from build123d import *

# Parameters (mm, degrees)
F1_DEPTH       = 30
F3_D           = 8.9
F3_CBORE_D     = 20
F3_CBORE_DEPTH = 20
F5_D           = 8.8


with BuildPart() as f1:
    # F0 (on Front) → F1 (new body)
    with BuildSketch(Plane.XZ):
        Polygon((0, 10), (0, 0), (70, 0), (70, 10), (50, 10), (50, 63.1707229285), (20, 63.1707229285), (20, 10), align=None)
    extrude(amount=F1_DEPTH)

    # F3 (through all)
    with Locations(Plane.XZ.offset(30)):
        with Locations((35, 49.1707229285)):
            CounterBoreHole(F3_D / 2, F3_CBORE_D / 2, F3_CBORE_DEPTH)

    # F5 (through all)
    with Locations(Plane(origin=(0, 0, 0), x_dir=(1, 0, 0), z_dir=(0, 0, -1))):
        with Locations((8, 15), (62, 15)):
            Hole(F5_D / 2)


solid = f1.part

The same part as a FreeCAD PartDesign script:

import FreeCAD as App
import Part
import Sketcher


def add_polygon(sketch, points):
    """Adds a closed chain of lines whose ends are joined by coincident constraints."""
    first, n = sketch.GeometryCount, len(points)
    for a, b in zip(points, points[1:] + points[:1]):
        sketch.addGeometry(Part.LineSegment(App.Vector(*a, 0), App.Vector(*b, 0)), False)
    for i in range(n):
        sketch.addConstraint(Sketcher.Constraint("Coincident", first + i, 2, first + (i + 1) % n, 1))

doc = App.newDocument("Part")
body = doc.addObject("PartDesign::Body", "Body")

# Sketch on XZ plane
sketch1 = body.newObject("Sketcher::SketchObject", "Sketch")
sketch1.AttachmentSupport = (doc.getObject("XZ_Plane"), [""])
sketch1.MapMode = "FlatFace"
add_polygon(sketch1, [(0, 10), (0, 0), (70, 0), (70, 10), (50, 10), (50, 63.170723), (20, 63.170723), (20, 10)])  # lines 0-7
sketch1.addConstraint([
    Sketcher.Constraint("Vertical", 0),
    Sketcher.Constraint("Horizontal", 1),
    Sketcher.Constraint("Vertical", 2),
    Sketcher.Constraint("Horizontal", 3),
    Sketcher.Constraint("Vertical", 4),
    Sketcher.Constraint("Horizontal", 5),
    Sketcher.Constraint("Vertical", 6),
    Sketcher.Constraint("Horizontal", 7),
    Sketcher.Constraint("Coincident", 0, 2, -1, 1),
    Sketcher.Constraint("Horizontal", 3, 2, 6, 2),
    Sketcher.Constraint("Equal", 3, 7),
    Sketcher.Constraint("DistanceX", 1, 1, 1, 2, 70.0),
    Sketcher.Constraint("DistanceX", 3, 2, 3, 1, 20.0),
    Sketcher.Constraint("DistanceY", 0, 2, 0, 1, 10.0),
    Sketcher.Constraint("DistanceY", 4, 1, 4, 2, 53.170723),
])
pad1 = body.newObject("PartDesign::Pad", "Pad")
pad1.Profile = sketch1
pad1.Length = 30

# Sketch on XZ plane
sketch2 = body.newObject("Sketcher::SketchObject", "Sketch001")
sketch2.AttachmentSupport = (doc.getObject("XZ_Plane"), [""])
sketch2.MapMode = "FlatFace"
sketch2.AttachmentOffset = App.Placement(App.Vector(0, 0, 30), App.Rotation())
sketch2.addGeometry(Part.Circle(App.Vector(35, 49.170723, 0), App.Vector(0, 0, 1), 4.45), False)
sketch2.addConstraint([
    Sketcher.Constraint("Diameter", 0, 8.9),
    Sketcher.Constraint("DistanceX", -1, 1, 0, 3, 35.0),
    Sketcher.Constraint("DistanceY", -1, 1, 0, 3, 49.170723),
])
doc.recompute()
hole = body.newObject("PartDesign::Hole", "Hole")
hole.Profile = sketch2
hole.ThreadType = "None"
hole.Diameter = 8.9
hole.DepthType = "ThroughAll"
hole.HoleCutType = "Counterbore"
hole.HoleCutDiameter = 20
hole.HoleCutDepth = 20

# Sketch on XY plane
sketch3 = body.newObject("Sketcher::SketchObject", "Sketch002")
sketch3.AttachmentSupport = (doc.getObject("XY_Plane"), [""])
sketch3.MapMode = "FlatFace"
sketch3.addGeometry([
    Part.Circle(App.Vector(8, -15, 0), App.Vector(0, 0, 1), 4.4),
    Part.Circle(App.Vector(62, -15, 0), App.Vector(0, 0, 1), 4.4),
], False)
sketch3.addConstraint([
    Sketcher.Constraint("Equal", 0, 1),
    Sketcher.Constraint("Horizontal", 0, 3, 1, 3),
    Sketcher.Constraint("Diameter", 0, 8.8),
    Sketcher.Constraint("DistanceX", -1, 1, 0, 3, 8.0),
    Sketcher.Constraint("DistanceY", 0, 3, -1, 1, 15.0),
    Sketcher.Constraint("DistanceX", -1, 1, 1, 3, 62.0),
])
doc.recompute()
hole2 = body.newObject("PartDesign::Hole", "Hole001")
hole2.Profile = sketch3
hole2.ThreadType = "None"
hole2.Diameter = 8.8
hole2.DepthType = "ThroughAll"
hole2.Reversed = True

doc.recompute()
